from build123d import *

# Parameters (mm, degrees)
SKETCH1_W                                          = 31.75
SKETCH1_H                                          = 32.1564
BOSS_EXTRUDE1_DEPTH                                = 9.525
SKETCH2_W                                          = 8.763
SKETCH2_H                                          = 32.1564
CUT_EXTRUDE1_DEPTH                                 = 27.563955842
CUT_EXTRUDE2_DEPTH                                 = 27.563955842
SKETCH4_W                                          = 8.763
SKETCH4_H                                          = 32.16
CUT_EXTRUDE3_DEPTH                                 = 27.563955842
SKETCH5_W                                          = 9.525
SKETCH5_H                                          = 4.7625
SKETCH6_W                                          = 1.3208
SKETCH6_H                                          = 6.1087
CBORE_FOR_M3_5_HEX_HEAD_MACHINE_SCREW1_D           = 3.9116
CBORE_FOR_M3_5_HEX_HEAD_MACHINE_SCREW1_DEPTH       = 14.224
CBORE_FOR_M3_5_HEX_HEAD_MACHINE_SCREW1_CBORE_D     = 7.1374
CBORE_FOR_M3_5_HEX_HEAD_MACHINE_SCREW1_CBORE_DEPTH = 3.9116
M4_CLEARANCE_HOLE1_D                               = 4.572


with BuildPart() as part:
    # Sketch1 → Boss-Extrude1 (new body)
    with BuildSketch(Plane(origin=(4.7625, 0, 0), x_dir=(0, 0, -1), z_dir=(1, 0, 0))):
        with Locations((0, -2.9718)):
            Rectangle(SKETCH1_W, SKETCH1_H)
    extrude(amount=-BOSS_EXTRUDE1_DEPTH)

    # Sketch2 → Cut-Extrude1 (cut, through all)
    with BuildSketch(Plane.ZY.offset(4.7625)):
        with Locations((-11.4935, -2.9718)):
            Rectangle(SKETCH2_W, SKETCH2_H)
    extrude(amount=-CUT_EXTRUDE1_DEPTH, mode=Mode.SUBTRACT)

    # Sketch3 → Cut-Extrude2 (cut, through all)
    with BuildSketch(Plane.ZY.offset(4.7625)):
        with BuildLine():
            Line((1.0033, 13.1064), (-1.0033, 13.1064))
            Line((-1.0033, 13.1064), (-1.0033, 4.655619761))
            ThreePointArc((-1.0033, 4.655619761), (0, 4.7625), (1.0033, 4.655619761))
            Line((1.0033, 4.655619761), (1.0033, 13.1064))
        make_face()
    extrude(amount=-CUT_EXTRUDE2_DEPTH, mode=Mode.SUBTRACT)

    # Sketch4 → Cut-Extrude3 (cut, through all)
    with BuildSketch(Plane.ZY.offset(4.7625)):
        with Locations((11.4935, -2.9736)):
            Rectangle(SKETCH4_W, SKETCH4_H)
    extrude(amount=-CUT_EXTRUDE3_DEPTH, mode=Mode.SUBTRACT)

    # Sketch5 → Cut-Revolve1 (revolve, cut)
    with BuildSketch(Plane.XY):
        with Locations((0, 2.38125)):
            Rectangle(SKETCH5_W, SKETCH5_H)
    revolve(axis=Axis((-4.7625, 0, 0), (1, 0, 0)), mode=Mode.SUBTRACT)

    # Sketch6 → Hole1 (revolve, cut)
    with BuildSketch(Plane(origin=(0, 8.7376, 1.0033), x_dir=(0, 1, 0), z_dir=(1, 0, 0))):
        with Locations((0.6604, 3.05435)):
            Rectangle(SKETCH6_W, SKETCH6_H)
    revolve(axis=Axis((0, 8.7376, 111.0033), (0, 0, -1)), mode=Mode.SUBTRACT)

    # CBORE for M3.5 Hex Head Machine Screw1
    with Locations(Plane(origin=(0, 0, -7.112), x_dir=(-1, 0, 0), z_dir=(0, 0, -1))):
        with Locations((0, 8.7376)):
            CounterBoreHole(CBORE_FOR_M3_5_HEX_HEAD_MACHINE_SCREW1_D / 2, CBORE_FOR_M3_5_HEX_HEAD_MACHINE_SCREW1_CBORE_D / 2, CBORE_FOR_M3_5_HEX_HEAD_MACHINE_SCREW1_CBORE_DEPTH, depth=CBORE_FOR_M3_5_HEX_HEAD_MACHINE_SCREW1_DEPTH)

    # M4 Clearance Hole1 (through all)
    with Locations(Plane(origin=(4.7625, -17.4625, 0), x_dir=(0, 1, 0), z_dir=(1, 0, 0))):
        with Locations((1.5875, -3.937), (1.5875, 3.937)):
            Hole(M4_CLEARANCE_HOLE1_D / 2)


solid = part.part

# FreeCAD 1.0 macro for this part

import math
import FreeCAD as App
import Part
import Sketcher

V = App.Vector
Q = App.Units.Quantity


def add_polygon(sketch, points):
    """Adds a closed chain of lines whose ends are joined by coincident constraints."""
    first, n = sketch.GeometryCount, len(points)
    for a, b in zip(points, points[1:] + points[:1]):
        sketch.addGeometry(Part.LineSegment(App.Vector(*a, 0), App.Vector(*b, 0)), False)
    for i in range(n):
        sketch.addConstraint(Sketcher.Constraint("Coincident", first + i, 2, first + (i + 1) % n, 1))

doc = App.newDocument("Part")
body = doc.addObject("PartDesign::Body", "Body")

sketch1 = body.newObject("Sketcher::SketchObject", "Sketch")
sketch1.AttachmentSupport = (doc.getObject("YZ_Plane"), [""])
sketch1.MapMode = "FlatFace"
sketch1.AttachmentOffset = App.Placement(V(0, 0, 0.1875 * 25.4), App.Rotation())
add_polygon(sketch1, [(13, 16), (-19, 16), (-19, -16), (13, -16)])
sketch1.addConstraint([
    Sketcher.Constraint("Horizontal", 0),
    Sketcher.Constraint("Vertical", 1),
    Sketcher.Constraint("Horizontal", 2),
    Sketcher.Constraint("Vertical", 3),
    Sketcher.Constraint("DistanceY", 1, 2, 1, 1, Q("1.25 in")),
    Sketcher.Constraint("DistanceX", 0, 2, 0, 1, Q("1.266 in")),
    Sketcher.Constraint("DistanceX", 0, 2, -1, 1, Q("0.75 in")),
    Sketcher.Constraint("DistanceY", -1, 1, 0, 2, Q("0.625 in")),
])
pad1 = body.newObject("PartDesign::Pad", "Pad")
pad1.Profile = sketch1
pad1.Length = Q("0.375 in")
pad1.Reversed = True

sketch2 = body.newObject("Sketcher::SketchObject", "Sketch001")
sketch2.AttachmentSupport = (doc.getObject("YZ_Plane"), [""])
sketch2.MapMode = "FlatFace"
sketch2.AttachmentOffset = App.Placement(V(0, 0, -0.1875 * 25.4), App.Rotation())
add_polygon(sketch2, [(13, -16), (-19, -16), (-19, -7), (13, -7)])
sketch2.addConstraint([
    Sketcher.Constraint("Horizontal", 0),
    Sketcher.Constraint("Vertical", 1),
    Sketcher.Constraint("Horizontal", 2),
    Sketcher.Constraint("Vertical", 3),
    Sketcher.Constraint("DistanceX", 0, 2, 0, 1, Q("1.266 in")),
    Sketcher.Constraint("DistanceY", 1, 1, 1, 2, Q("0.345 in")),
    Sketcher.Constraint("DistanceX", 0, 2, -1, 1, Q("0.75 in")),
    Sketcher.Constraint("DistanceY", 1, 2, -1, 1, Q("0.28 in")),
])
pocket1 = body.newObject("PartDesign::Pocket", "Pocket")
pocket1.Profile = sketch2
pocket1.Type = "ThroughAll"
pocket1.Reversed = True

sketch3 = body.newObject("Sketcher::SketchObject", "Sketch002")
sketch3.AttachmentSupport = (doc.getObject("YZ_Plane"), [""])
sketch3.MapMode = "FlatFace"
sketch3.AttachmentOffset = App.Placement(V(0, 0, -0.1875 * 25.4), App.Rotation())
sketch3.addGeometry([
    Part.LineSegment(V(13.1, 1, 0), V(13.1, -1, 0)),
    Part.LineSegment(V(13.1, -1, 0), V(4.7, -1, 0)),
    Part.ArcOfCircle(Part.Circle(V(0, 0, 0), V(0, 0, 1), 4.8), math.radians(-12), math.radians(12)),
    Part.LineSegment(V(4.7, 1, 0), V(13.1, 1, 0)),
], False)
sketch3.addConstraint([
    Sketcher.Constraint("Coincident", 0, 2, 1, 1),
    Sketcher.Constraint("Coincident", 1, 2, 2, 1),
    Sketcher.Constraint("Coincident", 2, 2, 3, 1),
    Sketcher.Constraint("Coincident", 3, 2, 0, 1),
    Sketcher.Constraint("Vertical", 0),
    Sketcher.Constraint("Horizontal", 1),
    Sketcher.Constraint("Horizontal", 3),
    Sketcher.Constraint("Coincident", 2, 3, -1, 1),
    Sketcher.Constraint("Vertical", 1, 2, 2, 2),
    Sketcher.Constraint("Radius", 2, Q("0.1875 in")),
    Sketcher.Constraint("DistanceY", 0, 2, 0, 1, Q("0.079 in")),
    Sketcher.Constraint("DistanceX", -1, 1, 0, 2, Q("0.516 in")),
])
pocket2 = body.newObject("PartDesign::Pocket", "Pocket001")
pocket2.Profile = sketch3
pocket2.Type = "ThroughAll"
pocket2.Reversed = True

sketch4 = body.newObject("Sketcher::SketchObject", "Sketch003")
sketch4.AttachmentSupport = (doc.getObject("YZ_Plane"), [""])
sketch4.MapMode = "FlatFace"
sketch4.AttachmentOffset = App.Placement(V(0, 0, -0.1875 * 25.4), App.Rotation())
add_polygon(sketch4, [(13, 7), (-19, 7), (-19, 16), (13, 16)])
sketch4.addConstraint([
    Sketcher.Constraint("Horizontal", 0),
    Sketcher.Constraint("Vertical", 1),
    Sketcher.Constraint("Horizontal", 2),
    Sketcher.Constraint("Vertical", 3),
    Sketcher.Constraint("DistanceY", 1, 1, 1, 2, Q("0.345 in")),
    Sketcher.Constraint("DistanceY", -1, 1, 0, 2, Q("0.28 in")),
    Sketcher.Constraint("DistanceX", -1, 1, 2, 2, Q("0.516 in")),
    Sketcher.Constraint("DistanceX", 0, 2, 0, 1, 32.16),
])
pocket3 = body.newObject("PartDesign::Pocket", "Pocket002")
pocket3.Profile = sketch4
pocket3.Type = "ThroughAll"
pocket3.Reversed = True

sketch5 = body.newObject("Sketcher::SketchObject", "Sketch004")
sketch5.AttachmentSupport = (doc.getObject("XY_Plane"), [""])
sketch5.MapMode = "FlatFace"
add_polygon(sketch5, [(-4.8, 4.8), (-4.8, 0), (4.8, 0), (4.8, 4.8)])
sketch5.addConstraint([
    Sketcher.Constraint("Vertical", 0),
    Sketcher.Constraint("Horizontal", 1),
    Sketcher.Constraint("Vertical", 2),
    Sketcher.Constraint("Horizontal", 3),
    Sketcher.Constraint("Symmetric", 0, 2, 1, 2, -1, 1),
    Sketcher.Constraint("DistanceX", 1, 1, 1, 2, Q("0.375 in")),
    Sketcher.Constraint("DistanceY", 0, 2, 0, 1, Q("0.1875 in")),
])
groove = body.newObject("PartDesign::Groove", "Groove")
groove.Profile = sketch5
groove.ReferenceAxis = (sketch5, ["H_Axis"])
groove.Angle = 360

sketch6 = body.newObject("Sketcher::SketchObject", "Sketch005")
sketch6.AttachmentSupport = (doc.getObject("YZ_Plane"), [""])
sketch6.MapMode = "FlatFace"
add_polygon(sketch6, [(8.7, 7.1), (8.7, 1), (10.1, 1), (10.1, 7.1)])
sketch6.addGeometry(Part.LineSegment(V(8.7, 7.1, 0), V(8.7, 1, 0)), True)
sketch6.addConstraint([
    Sketcher.Constraint("Vertical", 0),
    Sketcher.Constraint("Horizontal", 1),
    Sketcher.Constraint("Vertical", 2),
    Sketcher.Constraint("Horizontal", 3),
    Sketcher.Constraint("Vertical", 4),
    Sketcher.Constraint("Coincident", 4, 1, 3, 2),
    Sketcher.Constraint("Horizontal", 1, 2, 4, 2),
    Sketcher.Constraint("DistanceX", 1, 1, 1, 2, Q("0.052 in")),
    Sketcher.Constraint("DistanceY", -1, 1, 2, 2, Q("0.28 in")),
    Sketcher.Constraint("DistanceY", 0, 2, 0, 1, Q("0.2405 in")),
    Sketcher.Constraint("DistanceX", -1, 1, 0, 2, Q("0.344 in")),
])
groove2 = body.newObject("PartDesign::Groove", "Groove001")
groove2.Profile = sketch6
groove2.ReferenceAxis = (sketch6, ["Axis0"])
groove2.Angle = 360

sketch7 = body.newObject("Sketcher::SketchObject", "Sketch006")
sketch7.AttachmentSupport = (doc.getObject("XY_Plane"), [""])
sketch7.MapMode = "FlatFace"
sketch7.AttachmentOffset = App.Placement(V(0, 0, -0.28 * 25.4), App.Rotation())
sketch7.addGeometry(Part.Circle(V(0, 8.7, 0), V(0, 0, 1), 2), False)
sketch7.addConstraint([
    Sketcher.Constraint("PointOnObject", 0, 3, -2),
    Sketcher.Constraint("Diameter", 0, Q("0.154 in")),
    Sketcher.Constraint("DistanceY", -1, 1, 0, 3, Q("0.344 in")),
])
doc.recompute()
hole = body.newObject("PartDesign::Hole", "Hole")
hole.Profile = sketch7
hole.ThreadType = "None"
hole.Diameter = Q("0.154 in")
hole.DepthType = "Dimension"
hole.Depth = Q("0.56 in")
hole.DrillPoint = "Flat"
hole.HoleCutType = "Counterbore"
hole.HoleCutDiameter = Q("0.281 in")
hole.HoleCutDepth = Q("0.154 in")
hole.Reversed = True

sketch8 = body.newObject("Sketcher::SketchObject", "Sketch007")
sketch8.AttachmentSupport = (doc.getObject("YZ_Plane"), [""])
sketch8.MapMode = "FlatFace"
sketch8.AttachmentOffset = App.Placement(V(0, 0, 0.1875 * 25.4), App.Rotation())
sketch8.addGeometry([
    Part.Circle(V(-15.9, -3.9, 0), V(0, 0, 1), 2.3),
    Part.Circle(V(-15.9, 3.9, 0), V(0, 0, 1), 2.3),
], False)
sketch8.addConstraint([
    Sketcher.Constraint("Equal", 0, 1),
    Sketcher.Constraint("Symmetric", 0, 3, 1, 3, -1),
    Sketcher.Constraint("Diameter", 0, Q("0.18 in")),
    Sketcher.Constraint("DistanceY", 0, 3, 1, 3, Q("0.31 in")),
    Sketcher.Constraint("DistanceX", 0, 3, -1, 1, Q("0.625 in")),
])
doc.recompute()
hole2 = body.newObject("PartDesign::Hole", "Hole001")
hole2.Profile = sketch8
hole2.ThreadType = "None"
hole2.Diameter = Q("0.18 in")
hole2.DepthType = "ThroughAll"

doc.recompute()
